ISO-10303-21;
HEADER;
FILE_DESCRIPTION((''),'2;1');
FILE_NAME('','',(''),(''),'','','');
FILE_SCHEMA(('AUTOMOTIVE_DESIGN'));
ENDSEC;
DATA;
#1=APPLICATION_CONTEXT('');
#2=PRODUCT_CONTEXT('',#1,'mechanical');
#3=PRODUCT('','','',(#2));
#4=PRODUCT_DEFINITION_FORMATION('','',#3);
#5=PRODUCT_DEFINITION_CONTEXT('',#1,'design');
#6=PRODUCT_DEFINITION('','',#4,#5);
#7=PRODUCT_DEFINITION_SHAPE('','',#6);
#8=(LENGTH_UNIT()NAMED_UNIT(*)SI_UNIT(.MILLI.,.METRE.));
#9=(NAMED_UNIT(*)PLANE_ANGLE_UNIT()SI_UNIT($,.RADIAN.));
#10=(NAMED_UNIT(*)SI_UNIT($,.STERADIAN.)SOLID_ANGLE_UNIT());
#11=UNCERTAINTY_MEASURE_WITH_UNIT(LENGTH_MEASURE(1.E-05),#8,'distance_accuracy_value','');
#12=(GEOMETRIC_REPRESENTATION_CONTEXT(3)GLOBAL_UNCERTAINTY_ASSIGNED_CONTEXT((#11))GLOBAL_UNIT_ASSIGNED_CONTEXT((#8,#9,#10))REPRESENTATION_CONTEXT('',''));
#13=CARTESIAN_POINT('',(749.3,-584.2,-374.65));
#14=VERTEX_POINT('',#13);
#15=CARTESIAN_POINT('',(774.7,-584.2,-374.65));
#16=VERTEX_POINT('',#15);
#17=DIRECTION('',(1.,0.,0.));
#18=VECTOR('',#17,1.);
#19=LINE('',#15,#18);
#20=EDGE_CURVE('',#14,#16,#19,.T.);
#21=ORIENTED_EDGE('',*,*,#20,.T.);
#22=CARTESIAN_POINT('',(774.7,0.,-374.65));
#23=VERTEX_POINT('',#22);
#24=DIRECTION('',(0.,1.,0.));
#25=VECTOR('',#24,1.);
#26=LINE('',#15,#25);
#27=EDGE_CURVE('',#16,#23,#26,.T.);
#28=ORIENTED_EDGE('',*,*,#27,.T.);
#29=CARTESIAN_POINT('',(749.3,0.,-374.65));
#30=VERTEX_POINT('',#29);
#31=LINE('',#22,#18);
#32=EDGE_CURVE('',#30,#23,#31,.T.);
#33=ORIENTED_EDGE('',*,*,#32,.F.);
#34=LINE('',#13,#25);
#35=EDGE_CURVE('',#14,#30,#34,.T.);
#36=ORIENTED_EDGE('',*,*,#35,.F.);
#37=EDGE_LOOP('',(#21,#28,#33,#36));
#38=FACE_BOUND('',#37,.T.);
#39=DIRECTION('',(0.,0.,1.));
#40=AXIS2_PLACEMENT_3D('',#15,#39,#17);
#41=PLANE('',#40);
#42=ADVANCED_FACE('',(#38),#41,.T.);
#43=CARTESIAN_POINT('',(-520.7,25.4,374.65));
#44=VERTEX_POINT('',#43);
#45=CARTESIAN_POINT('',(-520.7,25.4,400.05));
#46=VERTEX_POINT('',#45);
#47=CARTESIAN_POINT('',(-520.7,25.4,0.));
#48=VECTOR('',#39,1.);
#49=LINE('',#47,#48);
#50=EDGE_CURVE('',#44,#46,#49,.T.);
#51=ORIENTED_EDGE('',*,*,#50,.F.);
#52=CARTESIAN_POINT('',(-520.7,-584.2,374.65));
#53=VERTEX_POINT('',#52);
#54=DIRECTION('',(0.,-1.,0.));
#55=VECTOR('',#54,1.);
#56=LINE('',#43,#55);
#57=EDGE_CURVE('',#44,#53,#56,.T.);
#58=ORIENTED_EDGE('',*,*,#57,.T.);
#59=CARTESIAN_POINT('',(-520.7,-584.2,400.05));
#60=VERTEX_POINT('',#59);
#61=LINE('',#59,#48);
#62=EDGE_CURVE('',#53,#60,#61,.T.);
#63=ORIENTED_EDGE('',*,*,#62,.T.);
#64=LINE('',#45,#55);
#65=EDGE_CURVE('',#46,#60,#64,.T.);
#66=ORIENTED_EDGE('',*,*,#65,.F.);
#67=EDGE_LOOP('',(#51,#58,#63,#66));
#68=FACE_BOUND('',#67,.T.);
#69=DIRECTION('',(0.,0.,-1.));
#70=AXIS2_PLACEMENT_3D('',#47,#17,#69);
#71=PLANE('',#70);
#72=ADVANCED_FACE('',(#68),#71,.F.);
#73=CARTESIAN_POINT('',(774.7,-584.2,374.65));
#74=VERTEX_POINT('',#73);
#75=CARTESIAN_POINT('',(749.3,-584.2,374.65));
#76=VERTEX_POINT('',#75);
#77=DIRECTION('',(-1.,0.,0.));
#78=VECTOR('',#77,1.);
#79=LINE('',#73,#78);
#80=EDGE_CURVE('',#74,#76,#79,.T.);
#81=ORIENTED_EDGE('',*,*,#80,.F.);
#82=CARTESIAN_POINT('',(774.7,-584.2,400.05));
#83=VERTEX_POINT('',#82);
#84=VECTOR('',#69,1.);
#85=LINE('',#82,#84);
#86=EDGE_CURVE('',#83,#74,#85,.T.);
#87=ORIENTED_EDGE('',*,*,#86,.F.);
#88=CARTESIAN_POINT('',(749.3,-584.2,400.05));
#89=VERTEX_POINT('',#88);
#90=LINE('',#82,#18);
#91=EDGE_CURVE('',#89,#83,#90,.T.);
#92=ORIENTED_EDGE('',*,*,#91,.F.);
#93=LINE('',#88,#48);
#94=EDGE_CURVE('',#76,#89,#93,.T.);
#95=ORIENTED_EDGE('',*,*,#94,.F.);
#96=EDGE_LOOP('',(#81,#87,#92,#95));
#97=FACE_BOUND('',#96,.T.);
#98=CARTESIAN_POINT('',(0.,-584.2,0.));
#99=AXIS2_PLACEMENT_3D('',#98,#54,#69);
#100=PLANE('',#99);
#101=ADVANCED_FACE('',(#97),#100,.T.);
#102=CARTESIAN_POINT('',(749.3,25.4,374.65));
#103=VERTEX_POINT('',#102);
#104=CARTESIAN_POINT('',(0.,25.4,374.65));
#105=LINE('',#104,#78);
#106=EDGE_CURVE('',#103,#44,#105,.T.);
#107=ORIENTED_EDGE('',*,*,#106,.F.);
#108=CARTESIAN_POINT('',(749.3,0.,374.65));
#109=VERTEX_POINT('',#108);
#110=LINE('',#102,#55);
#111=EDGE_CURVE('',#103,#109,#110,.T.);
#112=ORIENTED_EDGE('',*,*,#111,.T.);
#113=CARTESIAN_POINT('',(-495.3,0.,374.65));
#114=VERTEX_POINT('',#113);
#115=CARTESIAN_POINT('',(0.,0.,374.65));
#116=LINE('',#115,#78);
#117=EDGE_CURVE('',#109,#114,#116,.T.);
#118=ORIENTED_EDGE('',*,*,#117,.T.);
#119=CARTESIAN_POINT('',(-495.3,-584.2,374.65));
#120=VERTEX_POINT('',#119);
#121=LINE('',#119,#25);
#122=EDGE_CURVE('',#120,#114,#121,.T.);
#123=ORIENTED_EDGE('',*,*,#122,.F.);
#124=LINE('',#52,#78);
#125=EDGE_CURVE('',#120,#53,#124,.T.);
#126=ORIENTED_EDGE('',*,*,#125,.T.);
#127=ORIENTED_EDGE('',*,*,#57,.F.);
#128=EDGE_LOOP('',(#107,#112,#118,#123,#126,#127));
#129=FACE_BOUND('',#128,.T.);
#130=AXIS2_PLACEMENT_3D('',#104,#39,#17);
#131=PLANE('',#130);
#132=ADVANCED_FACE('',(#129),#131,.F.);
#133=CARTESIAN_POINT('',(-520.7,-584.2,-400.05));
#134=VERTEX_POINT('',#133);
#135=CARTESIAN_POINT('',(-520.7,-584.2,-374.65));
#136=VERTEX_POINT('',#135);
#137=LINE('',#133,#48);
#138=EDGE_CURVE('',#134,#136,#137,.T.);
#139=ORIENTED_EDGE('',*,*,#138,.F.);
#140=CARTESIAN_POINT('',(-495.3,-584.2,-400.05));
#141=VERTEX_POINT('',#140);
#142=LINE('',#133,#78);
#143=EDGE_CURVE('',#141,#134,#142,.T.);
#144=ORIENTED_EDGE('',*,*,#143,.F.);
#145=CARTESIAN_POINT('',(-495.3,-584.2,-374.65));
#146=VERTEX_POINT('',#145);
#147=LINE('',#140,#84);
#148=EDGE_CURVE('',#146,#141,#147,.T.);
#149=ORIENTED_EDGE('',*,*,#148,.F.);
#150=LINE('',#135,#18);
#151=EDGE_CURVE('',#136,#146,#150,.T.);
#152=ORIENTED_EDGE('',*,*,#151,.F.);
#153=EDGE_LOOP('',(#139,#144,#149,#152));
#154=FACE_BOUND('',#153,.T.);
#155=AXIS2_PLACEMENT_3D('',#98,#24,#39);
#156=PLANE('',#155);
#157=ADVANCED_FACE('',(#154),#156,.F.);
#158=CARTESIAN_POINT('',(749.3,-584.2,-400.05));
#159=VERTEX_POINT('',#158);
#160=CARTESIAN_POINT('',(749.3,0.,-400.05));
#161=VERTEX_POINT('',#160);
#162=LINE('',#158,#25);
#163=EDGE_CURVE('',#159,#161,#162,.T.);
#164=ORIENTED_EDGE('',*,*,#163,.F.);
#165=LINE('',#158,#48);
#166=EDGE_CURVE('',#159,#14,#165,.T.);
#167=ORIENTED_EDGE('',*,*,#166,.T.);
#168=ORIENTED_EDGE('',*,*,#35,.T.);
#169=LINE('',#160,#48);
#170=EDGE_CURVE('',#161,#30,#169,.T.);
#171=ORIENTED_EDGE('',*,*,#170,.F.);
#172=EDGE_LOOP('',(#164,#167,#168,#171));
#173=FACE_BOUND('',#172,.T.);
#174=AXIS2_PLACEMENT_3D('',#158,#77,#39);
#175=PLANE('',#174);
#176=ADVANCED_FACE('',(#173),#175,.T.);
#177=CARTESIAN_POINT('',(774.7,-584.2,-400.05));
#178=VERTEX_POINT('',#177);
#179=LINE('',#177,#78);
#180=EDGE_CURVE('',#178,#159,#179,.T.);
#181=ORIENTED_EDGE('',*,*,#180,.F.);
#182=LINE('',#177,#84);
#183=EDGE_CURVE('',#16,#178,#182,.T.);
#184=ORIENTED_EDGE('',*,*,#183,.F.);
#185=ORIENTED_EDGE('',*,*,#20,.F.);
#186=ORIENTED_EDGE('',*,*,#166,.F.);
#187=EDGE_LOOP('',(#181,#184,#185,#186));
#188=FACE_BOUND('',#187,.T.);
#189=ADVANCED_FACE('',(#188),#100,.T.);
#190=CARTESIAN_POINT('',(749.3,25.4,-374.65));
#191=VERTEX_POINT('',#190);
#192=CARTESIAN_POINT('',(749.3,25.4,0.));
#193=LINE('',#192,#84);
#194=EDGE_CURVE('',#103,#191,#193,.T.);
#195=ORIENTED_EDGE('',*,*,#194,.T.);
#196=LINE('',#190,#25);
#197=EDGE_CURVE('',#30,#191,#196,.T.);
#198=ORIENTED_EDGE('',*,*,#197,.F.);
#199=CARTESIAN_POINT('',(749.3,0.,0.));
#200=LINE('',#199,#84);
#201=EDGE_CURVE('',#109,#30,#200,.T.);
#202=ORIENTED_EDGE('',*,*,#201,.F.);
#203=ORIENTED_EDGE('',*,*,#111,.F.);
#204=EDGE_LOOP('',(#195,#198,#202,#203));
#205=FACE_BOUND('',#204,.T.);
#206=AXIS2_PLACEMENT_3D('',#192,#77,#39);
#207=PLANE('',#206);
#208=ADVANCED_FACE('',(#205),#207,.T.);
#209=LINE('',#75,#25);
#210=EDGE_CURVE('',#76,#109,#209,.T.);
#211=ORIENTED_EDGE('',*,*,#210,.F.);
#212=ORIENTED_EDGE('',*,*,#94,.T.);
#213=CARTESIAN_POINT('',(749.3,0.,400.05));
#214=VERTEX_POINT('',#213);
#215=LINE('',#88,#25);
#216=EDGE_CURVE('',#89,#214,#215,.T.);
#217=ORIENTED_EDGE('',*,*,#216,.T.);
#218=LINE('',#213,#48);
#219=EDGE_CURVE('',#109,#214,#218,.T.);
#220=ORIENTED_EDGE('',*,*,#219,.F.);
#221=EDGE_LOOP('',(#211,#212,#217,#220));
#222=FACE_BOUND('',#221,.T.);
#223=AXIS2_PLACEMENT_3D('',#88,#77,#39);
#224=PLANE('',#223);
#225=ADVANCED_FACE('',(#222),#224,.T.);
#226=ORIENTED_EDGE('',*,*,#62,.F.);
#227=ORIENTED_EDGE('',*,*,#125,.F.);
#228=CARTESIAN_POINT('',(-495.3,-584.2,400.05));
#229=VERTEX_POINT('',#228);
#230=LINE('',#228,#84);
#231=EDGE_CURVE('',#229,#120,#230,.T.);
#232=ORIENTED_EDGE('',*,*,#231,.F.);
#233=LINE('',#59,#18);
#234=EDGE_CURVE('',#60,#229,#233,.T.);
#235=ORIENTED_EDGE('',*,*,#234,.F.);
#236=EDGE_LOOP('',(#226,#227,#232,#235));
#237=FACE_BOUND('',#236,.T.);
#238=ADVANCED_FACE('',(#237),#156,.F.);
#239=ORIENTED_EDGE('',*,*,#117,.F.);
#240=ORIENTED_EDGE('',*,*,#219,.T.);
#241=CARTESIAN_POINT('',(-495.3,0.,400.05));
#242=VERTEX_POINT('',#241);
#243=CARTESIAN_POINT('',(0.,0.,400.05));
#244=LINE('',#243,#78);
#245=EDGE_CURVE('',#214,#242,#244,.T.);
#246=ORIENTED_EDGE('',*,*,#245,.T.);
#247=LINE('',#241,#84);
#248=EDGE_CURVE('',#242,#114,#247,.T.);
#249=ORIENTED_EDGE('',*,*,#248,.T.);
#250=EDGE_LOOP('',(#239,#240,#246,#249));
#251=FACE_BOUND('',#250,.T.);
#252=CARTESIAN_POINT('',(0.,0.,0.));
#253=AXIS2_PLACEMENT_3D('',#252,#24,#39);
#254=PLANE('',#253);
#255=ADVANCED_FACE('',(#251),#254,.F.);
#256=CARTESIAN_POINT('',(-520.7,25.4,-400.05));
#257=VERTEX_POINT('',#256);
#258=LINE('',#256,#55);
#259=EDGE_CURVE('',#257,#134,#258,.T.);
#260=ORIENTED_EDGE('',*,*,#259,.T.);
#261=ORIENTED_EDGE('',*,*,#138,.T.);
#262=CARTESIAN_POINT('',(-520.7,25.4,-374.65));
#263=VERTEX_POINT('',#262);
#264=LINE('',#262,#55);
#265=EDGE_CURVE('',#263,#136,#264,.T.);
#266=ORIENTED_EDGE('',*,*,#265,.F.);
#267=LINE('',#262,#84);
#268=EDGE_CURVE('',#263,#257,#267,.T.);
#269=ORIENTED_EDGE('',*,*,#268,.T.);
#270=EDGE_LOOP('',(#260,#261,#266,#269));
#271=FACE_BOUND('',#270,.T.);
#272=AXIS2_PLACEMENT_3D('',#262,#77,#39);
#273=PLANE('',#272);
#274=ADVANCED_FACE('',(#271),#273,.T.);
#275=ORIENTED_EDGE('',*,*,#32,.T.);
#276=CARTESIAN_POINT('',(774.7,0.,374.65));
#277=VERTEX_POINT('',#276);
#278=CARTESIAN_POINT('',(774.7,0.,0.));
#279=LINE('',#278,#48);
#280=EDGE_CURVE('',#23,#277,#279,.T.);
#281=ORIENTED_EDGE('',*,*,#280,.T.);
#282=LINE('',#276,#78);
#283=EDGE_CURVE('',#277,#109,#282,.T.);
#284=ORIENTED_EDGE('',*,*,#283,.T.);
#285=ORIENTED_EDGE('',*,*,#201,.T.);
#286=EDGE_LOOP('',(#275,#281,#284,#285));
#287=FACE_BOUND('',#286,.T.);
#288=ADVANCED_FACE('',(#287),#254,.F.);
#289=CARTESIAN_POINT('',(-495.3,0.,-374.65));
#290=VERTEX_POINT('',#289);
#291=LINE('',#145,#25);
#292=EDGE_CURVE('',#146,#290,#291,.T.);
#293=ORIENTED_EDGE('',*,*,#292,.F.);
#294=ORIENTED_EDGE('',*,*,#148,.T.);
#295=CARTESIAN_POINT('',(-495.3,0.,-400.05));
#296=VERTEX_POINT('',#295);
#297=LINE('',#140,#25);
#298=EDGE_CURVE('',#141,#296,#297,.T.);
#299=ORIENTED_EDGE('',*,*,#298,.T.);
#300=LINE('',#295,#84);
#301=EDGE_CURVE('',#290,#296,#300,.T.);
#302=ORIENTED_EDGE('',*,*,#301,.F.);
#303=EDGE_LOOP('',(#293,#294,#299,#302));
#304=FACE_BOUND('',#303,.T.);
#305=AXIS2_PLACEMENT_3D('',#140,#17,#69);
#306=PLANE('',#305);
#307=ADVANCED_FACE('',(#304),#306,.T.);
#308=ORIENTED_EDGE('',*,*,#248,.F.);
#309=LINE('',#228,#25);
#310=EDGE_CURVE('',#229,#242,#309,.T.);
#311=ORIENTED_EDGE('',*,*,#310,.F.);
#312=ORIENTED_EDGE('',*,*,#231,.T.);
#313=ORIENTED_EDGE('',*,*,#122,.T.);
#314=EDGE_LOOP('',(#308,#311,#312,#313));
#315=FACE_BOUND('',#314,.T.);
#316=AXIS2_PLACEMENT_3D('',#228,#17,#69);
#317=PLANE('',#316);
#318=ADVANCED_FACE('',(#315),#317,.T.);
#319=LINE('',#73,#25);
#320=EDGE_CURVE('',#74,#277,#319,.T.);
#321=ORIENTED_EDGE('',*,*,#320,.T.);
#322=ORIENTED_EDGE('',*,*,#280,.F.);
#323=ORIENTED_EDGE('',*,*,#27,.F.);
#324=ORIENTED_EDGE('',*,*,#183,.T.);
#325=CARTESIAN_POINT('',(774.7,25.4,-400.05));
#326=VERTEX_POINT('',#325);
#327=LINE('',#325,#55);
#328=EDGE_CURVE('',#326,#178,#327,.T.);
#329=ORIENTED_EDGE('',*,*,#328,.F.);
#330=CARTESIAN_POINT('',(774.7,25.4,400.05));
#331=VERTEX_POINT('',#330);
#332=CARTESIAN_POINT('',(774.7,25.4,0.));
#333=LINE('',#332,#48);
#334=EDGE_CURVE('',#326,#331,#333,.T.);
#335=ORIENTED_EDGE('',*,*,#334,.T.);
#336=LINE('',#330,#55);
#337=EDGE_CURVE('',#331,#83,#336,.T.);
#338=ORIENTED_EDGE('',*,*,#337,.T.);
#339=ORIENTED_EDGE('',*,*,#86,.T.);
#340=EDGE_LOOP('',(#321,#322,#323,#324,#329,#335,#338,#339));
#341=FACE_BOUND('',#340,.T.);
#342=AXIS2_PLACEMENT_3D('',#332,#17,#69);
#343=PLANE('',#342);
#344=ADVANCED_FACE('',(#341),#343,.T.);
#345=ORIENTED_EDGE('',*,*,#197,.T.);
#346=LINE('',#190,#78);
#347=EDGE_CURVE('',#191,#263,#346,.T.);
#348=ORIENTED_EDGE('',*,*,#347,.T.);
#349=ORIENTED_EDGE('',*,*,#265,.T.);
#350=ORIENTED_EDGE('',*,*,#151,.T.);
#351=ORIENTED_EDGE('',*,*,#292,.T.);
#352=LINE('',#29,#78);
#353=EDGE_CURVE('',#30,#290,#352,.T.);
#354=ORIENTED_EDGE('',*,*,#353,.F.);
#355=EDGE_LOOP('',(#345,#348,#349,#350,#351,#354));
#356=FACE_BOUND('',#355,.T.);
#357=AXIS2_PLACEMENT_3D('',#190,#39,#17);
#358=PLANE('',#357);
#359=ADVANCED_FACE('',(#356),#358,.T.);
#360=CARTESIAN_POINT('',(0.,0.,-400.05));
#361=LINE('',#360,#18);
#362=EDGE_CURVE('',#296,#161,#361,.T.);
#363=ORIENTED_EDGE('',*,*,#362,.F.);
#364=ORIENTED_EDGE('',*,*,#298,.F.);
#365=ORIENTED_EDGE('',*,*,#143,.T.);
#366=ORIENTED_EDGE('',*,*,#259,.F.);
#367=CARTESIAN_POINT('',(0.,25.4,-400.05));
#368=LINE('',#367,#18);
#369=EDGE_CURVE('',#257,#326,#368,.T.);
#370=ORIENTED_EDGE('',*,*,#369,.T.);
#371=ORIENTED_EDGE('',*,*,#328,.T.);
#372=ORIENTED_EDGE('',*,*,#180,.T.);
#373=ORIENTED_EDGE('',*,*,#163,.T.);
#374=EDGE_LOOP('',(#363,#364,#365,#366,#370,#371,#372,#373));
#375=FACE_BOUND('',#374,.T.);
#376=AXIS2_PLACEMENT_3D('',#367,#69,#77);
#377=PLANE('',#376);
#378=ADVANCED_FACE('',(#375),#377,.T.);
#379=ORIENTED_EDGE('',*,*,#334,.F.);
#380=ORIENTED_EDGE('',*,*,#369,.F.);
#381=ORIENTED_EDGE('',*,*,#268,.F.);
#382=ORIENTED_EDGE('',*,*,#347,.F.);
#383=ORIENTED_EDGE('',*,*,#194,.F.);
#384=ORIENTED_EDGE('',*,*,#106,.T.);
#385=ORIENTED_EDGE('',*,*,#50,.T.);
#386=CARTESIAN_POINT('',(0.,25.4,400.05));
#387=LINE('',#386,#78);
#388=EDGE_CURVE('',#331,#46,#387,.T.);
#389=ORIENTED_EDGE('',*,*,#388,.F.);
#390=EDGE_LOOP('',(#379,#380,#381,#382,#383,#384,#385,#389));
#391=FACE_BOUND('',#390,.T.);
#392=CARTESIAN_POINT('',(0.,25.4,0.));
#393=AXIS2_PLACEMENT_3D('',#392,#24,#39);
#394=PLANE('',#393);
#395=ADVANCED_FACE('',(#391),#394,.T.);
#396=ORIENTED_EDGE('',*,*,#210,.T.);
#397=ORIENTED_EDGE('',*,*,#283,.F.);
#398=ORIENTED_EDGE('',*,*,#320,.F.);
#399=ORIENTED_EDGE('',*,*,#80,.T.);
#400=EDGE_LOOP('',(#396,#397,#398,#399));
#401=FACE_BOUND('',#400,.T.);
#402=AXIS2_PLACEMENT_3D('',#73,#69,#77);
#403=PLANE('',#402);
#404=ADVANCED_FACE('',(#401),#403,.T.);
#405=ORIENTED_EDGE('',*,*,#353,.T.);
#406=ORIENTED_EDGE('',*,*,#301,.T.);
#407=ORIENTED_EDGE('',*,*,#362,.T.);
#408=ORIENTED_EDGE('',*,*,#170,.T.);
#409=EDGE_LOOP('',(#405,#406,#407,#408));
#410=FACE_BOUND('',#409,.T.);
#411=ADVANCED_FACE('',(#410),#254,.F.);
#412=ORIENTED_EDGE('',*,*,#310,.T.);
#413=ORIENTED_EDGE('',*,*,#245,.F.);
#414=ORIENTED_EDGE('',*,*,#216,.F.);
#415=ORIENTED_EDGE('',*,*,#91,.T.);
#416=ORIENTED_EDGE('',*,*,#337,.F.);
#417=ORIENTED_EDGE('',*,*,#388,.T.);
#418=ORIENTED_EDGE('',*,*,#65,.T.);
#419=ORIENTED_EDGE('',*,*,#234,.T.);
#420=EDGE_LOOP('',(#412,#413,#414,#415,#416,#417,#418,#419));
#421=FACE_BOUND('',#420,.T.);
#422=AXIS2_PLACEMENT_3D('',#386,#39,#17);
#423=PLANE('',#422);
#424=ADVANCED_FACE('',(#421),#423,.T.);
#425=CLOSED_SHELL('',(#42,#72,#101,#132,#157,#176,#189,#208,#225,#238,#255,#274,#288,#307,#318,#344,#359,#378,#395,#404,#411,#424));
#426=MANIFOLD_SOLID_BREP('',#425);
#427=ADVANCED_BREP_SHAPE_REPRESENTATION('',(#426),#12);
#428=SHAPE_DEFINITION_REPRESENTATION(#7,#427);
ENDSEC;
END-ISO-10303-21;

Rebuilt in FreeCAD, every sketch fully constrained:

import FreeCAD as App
import Part
import Sketcher

V = App.Vector
Q = App.Units.Quantity


def add_polygon(sketch, points):
    """Adds a closed chain of lines whose ends are joined by coincident constraints."""
    first, n = sketch.GeometryCount, len(points)
    for a, b in zip(points, points[1:] + points[:1]):
        sketch.addGeometry(Part.LineSegment(App.Vector(*a, 0), App.Vector(*b, 0)), False)
    for i in range(n):
        sketch.addConstraint(Sketcher.Constraint("Coincident", first + i, 2, first + (i + 1) % n, 1))

doc = App.newDocument("Part")
body = doc.addObject("PartDesign::Body", "Body")

sketch1 = doc.addObject("Sketcher::SketchObject", "Sketch")
body.addObject(sketch1)
sketch1.AttachmentSupport = (doc.XZ_Plane, [""])
sketch1.MapMode = "FlatFace"
add_polygon(sketch1, [(-520.7, 374.65), (-520.7, 400.05), (774.7, 400.05), (774.7, -400.05), (-520.7, -400.05), (-520.7, -374.65), (749.3, -374.65), (749.3, 374.65)])
sketch1.addConstraint([
    Sketcher.Constraint("Vertical", 0),
    Sketcher.Constraint("Horizontal", 1),
    Sketcher.Constraint("Vertical", 2),
    Sketcher.Constraint("Horizontal", 3),
    Sketcher.Constraint("Vertical", 4),
    Sketcher.Constraint("Horizontal", 5),
    Sketcher.Constraint("Vertical", 6),
    Sketcher.Constraint("Horizontal", 7),
    Sketcher.Constraint("Symmetric", 0, 2, 3, 2, -1),
    Sketcher.Constraint("Equal", 0, 4),
    Sketcher.Constraint("DistanceX", 1, 1, 1, 2, Q("51 in")),
    Sketcher.Constraint("DistanceX", 5, 1, 5, 2, Q("50 in")),
    Sketcher.Constraint("DistanceY", 0, 1, 0, 2, Q("1 in")),
    Sketcher.Constraint("DistanceY", 2, 2, 2, 1, Q("31.5 in")),
    Sketcher.Constraint("DistanceX", 0, 2, -1, 1, Q("20.5 in")),
])
pad1 = doc.addObject("PartDesign::Pad", "Pad")
body.addObject(pad1)
pad1.Profile = sketch1
pad1.Length = Q("1 in")
pad1.Reversed = True

sketch2 = doc.addObject("Sketcher::SketchObject", "Sketch001")
body.addObject(sketch2)
sketch2.AttachmentSupport = (doc.XZ_Plane, [""])
sketch2.MapMode = "FlatFace"
add_polygon(sketch2, [(-520.7, -400.05), (-520.7, -374.65), (-495.3, -374.65), (-495.3, -400.05)])
add_polygon(sketch2, [(749.3, -400.05), (749.3, -374.65), (774.7, -374.65), (774.7, -400.05)])
add_polygon(sketch2, [(749.3, 374.65), (749.3, 400.05), (774.7, 400.05), (774.7, 374.65)])
add_polygon(sketch2, [(-520.7, 374.65), (-520.7, 400.05), (-495.3, 400.05), (-495.3, 374.65)])
sketch2.addConstraint([
    Sketcher.Constraint("Vertical", 0),
    Sketcher.Constraint("Horizontal", 1),
    Sketcher.Constraint("Vertical", 2),
    Sketcher.Constraint("Horizontal", 3),
    Sketcher.Constraint("Vertical", 4),
    Sketcher.Constraint("Horizontal", 5),
    Sketcher.Constraint("Vertical", 6),
    Sketcher.Constraint("Horizontal", 7),
    Sketcher.Constraint("Vertical", 8),
    Sketcher.Constraint("Horizontal", 9),
    Sketcher.Constraint("Vertical", 10),
    Sketcher.Constraint("Horizontal", 11),
    Sketcher.Constraint("Vertical", 12),
    Sketcher.Constraint("Horizontal", 13),
    Sketcher.Constraint("Vertical", 14),
    Sketcher.Constraint("Horizontal", 15),
    Sketcher.Constraint("Symmetric", 7, 2, 8, 2, -1),
    Sketcher.Constraint("Symmetric", 5, 2, 10, 2, -1),
    Sketcher.Constraint("Symmetric", 3, 2, 12, 2, -1),
    Sketcher.Constraint("Symmetric", 1, 2, 14, 2, -1),
    Sketcher.Constraint("Horizontal", 1, 2, 4, 2),
    Sketcher.Constraint("Horizontal", 3, 2, 6, 2),
    Sketcher.Constraint("Equal", 3, 5),
    Sketcher.Constraint("Equal", 15, 0),
    Sketcher.Constraint("DistanceX", 1, 1, 1, 2, Q("1 in")),
    Sketcher.Constraint("DistanceX", 1, 2, 4, 2, Q("49 in")),
    Sketcher.Constraint("DistanceX", 0, 2, -1, 1, Q("20.5 in")),
    Sketcher.Constraint("DistanceY", 4, 2, 8, 2, Q("30.5 in")),
])
pad2 = doc.addObject("PartDesign::Pad", "Pad001")
body.addObject(pad2)
pad2.Profile = sketch2
pad2.Length = Q("23 in")

doc.recompute()
